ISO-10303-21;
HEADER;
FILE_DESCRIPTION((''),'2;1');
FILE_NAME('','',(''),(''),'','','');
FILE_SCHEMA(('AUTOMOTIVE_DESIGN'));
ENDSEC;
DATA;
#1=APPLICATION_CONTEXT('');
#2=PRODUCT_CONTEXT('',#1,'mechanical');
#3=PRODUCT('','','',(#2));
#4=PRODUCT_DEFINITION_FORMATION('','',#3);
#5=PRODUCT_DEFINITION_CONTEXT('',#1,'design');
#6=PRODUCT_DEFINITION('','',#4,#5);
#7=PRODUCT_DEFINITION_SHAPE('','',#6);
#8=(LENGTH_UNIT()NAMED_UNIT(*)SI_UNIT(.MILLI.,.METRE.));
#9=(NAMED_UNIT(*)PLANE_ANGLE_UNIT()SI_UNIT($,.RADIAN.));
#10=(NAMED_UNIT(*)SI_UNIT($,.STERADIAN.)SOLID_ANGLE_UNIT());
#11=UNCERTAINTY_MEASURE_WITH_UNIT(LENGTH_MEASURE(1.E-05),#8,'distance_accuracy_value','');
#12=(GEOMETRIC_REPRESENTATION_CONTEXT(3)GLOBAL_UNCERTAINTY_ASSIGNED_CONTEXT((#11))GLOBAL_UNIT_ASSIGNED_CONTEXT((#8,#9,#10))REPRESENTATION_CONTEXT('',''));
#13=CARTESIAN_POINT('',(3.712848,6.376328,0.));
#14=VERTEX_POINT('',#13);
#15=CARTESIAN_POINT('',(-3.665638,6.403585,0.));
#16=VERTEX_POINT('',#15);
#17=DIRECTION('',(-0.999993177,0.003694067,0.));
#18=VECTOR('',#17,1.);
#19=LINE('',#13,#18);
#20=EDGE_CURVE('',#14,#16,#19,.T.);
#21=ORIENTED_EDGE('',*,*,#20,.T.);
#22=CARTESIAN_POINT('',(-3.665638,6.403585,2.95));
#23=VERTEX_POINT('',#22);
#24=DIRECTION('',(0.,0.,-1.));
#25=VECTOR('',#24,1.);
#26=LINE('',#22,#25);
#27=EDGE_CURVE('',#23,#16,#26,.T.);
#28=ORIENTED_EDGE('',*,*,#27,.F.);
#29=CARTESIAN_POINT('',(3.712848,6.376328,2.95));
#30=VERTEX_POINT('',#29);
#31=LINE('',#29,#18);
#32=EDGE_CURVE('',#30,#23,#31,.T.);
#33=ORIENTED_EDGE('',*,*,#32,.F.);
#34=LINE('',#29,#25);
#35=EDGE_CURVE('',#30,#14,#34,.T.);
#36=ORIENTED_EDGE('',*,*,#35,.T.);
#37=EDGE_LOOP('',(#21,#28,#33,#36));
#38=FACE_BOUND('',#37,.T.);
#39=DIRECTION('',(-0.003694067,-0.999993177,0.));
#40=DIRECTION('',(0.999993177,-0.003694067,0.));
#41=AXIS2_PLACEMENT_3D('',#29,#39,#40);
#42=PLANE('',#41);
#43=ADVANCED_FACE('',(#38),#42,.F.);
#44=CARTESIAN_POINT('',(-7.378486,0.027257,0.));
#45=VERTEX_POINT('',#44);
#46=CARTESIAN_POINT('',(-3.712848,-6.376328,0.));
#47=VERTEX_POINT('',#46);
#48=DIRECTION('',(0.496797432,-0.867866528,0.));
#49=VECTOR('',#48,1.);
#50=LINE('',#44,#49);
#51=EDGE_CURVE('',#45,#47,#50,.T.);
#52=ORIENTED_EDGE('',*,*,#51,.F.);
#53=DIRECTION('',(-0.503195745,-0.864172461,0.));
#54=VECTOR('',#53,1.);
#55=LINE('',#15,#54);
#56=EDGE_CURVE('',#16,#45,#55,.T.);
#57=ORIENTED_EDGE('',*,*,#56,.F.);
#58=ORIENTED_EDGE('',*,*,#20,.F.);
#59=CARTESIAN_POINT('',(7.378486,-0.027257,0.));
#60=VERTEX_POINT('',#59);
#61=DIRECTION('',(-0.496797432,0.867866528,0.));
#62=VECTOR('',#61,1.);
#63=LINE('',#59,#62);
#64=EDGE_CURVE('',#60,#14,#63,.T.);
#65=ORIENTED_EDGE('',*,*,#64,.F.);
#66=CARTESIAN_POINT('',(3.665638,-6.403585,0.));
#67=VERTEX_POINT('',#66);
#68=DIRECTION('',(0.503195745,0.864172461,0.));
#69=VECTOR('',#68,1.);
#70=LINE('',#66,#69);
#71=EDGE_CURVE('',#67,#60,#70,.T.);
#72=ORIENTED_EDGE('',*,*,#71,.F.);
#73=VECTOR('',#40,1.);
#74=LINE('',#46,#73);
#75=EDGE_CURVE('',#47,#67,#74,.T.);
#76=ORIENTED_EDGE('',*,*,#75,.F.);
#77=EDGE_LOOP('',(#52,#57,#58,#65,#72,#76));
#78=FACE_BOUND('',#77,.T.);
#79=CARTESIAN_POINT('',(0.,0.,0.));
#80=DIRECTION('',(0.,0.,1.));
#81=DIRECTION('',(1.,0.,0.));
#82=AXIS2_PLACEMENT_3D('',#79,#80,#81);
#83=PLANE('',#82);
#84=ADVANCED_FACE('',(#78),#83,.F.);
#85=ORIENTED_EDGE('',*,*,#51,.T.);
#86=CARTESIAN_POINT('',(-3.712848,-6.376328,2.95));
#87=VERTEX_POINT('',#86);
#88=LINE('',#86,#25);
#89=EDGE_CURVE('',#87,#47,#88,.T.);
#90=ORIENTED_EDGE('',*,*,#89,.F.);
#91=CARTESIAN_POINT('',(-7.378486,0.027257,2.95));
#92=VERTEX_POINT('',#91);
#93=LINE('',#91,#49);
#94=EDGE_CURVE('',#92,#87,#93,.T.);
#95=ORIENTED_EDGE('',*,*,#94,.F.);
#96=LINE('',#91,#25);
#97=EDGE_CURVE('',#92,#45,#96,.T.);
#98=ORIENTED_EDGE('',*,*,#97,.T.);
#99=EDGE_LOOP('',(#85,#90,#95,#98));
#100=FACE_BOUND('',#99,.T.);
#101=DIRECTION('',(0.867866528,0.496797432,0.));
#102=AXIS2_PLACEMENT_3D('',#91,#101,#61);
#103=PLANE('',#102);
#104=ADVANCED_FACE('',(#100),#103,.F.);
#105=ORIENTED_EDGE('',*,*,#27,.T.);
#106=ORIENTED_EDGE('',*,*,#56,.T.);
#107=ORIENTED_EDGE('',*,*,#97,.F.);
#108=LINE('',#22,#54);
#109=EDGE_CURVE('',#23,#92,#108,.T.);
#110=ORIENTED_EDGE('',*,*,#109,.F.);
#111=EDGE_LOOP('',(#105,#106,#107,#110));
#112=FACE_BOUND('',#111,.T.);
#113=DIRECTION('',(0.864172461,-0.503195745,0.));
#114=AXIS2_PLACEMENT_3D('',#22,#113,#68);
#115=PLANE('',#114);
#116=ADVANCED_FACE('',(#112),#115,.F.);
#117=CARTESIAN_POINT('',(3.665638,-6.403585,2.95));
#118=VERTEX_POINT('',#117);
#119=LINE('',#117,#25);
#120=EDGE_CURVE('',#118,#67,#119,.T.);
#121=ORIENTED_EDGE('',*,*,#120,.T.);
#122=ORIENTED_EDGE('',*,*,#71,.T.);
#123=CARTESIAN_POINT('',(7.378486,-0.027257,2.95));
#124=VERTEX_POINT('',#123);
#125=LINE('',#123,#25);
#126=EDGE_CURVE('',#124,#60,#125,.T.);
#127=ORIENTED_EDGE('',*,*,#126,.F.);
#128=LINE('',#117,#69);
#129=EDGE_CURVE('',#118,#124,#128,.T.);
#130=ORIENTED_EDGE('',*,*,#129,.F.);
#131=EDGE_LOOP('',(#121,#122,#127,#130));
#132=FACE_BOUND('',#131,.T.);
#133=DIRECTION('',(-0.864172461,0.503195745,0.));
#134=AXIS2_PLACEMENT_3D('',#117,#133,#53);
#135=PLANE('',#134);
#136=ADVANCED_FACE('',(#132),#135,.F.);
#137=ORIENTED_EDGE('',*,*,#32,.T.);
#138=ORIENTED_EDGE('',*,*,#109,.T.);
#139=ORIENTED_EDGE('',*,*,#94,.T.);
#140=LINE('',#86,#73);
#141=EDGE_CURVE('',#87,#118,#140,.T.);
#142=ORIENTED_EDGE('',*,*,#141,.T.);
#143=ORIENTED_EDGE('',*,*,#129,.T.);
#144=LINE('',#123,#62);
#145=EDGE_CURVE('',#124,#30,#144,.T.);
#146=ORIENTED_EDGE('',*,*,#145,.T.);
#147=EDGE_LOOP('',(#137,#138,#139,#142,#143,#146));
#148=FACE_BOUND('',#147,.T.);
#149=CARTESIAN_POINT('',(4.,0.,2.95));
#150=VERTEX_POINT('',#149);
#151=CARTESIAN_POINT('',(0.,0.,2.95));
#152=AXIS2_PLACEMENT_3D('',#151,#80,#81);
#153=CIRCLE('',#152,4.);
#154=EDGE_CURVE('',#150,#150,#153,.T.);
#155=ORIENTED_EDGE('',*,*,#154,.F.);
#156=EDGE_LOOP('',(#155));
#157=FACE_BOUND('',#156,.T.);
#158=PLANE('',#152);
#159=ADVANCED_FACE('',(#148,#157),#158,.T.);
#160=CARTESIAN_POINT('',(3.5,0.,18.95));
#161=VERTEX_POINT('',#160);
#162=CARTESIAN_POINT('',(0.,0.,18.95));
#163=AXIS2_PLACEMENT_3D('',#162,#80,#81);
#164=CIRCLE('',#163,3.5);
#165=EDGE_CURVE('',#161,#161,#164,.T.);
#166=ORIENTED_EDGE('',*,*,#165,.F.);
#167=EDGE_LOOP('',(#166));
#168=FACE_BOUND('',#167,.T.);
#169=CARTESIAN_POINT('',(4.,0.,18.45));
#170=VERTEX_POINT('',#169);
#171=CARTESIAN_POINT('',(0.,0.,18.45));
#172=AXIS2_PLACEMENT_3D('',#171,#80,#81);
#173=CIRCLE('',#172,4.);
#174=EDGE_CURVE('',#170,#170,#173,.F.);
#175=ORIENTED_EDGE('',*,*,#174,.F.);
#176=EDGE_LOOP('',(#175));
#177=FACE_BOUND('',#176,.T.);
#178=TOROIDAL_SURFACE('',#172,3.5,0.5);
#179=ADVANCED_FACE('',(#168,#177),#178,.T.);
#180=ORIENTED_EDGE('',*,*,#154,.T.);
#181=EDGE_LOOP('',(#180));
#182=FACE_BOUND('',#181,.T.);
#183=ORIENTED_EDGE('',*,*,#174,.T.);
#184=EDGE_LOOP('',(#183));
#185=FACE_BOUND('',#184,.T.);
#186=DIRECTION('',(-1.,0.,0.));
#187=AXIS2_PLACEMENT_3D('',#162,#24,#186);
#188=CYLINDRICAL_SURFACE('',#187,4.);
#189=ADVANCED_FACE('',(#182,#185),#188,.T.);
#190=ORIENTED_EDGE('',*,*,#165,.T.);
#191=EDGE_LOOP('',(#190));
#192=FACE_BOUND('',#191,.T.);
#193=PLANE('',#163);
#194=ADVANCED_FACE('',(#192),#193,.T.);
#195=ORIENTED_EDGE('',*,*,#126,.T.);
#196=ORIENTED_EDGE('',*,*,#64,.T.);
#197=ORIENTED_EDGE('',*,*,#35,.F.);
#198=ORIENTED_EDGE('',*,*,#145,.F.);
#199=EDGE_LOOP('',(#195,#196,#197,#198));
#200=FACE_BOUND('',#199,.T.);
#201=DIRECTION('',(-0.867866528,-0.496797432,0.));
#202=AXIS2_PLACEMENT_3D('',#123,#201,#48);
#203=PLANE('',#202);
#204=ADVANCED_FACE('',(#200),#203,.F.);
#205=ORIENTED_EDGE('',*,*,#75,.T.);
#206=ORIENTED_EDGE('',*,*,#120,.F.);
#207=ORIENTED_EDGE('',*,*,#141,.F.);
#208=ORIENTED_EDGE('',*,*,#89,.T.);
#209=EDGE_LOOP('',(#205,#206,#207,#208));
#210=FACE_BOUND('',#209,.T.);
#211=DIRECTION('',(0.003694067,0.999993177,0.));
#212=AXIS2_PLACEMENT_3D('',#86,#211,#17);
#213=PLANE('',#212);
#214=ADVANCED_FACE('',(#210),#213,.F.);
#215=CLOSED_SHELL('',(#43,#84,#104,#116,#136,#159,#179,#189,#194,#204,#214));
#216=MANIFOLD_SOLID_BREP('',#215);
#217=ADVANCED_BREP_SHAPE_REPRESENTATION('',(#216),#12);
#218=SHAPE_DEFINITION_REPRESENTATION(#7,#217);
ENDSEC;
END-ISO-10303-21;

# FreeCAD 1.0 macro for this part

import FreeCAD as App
import Part
import Sketcher

V = App.Vector


def edges_at(feature, points):
    """Names of the edges that pass closest to the given points."""
    edges = feature.Shape.Edges
    near = lambda p: min(range(len(edges)), key=lambda i: edges[i].distToShape(Part.Vertex(*p))[0])
    return sorted({f"Edge{near(p) + 1}" for p in points})


def add_polygon(sketch, points):
    """Adds a closed chain of lines whose ends are joined by coincident constraints."""
    first, n = sketch.GeometryCount, len(points)
    for a, b in zip(points, points[1:] + points[:1]):
        sketch.addGeometry(Part.LineSegment(App.Vector(*a, 0), App.Vector(*b, 0)), False)
    for i in range(n):
        sketch.addConstraint(Sketcher.Constraint("Coincident", first + i, 2, first + (i + 1) % n, 1))

doc = App.newDocument("Part")
body = doc.addObject("PartDesign::Body", "Body")

# Sketch on XY plane
sketch1 = body.newObject("Sketcher::SketchObject", "Sketch")
sketch1.AttachmentSupport = (doc.getObject("XY_Plane"), [""])
sketch1.MapMode = "FlatFace"
add_polygon(sketch1, [(4, 6), (-4, 6), (-7, 0), (-4, -6), (4, -6), (7, 0)])  # lines 0-5
sketch1.addConstraint(Sketcher.Constraint("Symmetric", 0, 2, 3, 2, -1, 1))
sketch1.addConstraint(Sketcher.Constraint("Symmetric", 1, 2, 4, 2, -1, 1))
sketch1.addConstraint(Sketcher.Constraint("Symmetric", 2, 2, 5, 2, -1, 1))
sketch1.addConstraint(Sketcher.Constraint("Equal", 0, 1))
sketch1.addConstraint(Sketcher.Constraint("Equal", 1, 2))
sketch1.addConstraint(Sketcher.Constraint("DistanceX", 2, 2, -1, 1, 3.712848))
sketch1.addConstraint(Sketcher.Constraint("DistanceX", 1, 2, 0, 2, 3.712848))
sketch1.addConstraint(Sketcher.Constraint("DistanceX", 2, 2, 0, 2, 0.04721))
sketch1.addConstraint(Sketcher.Constraint("DistanceY", 3, 2, 1, 2, 6.430842))
pad1 = body.newObject("PartDesign::Pad", "Pad")
pad1.Profile = sketch1
pad1.Length = 2.95

# Sketch on XY plane
sketch2 = body.newObject("Sketcher::SketchObject", "Sketch001")
sketch2.AttachmentSupport = (doc.getObject("XY_Plane"), [""])
sketch2.MapMode = "FlatFace"
sketch2.AttachmentOffset = App.Placement(V(0, 0, 2.95), App.Rotation())
sketch2.addGeometry(Part.Circle(V(0, 0, 0), V(0, 0, 1), 4), False)
sketch2.addConstraint(Sketcher.Constraint("Coincident", 0, 3, -1, 1))
sketch2.addConstraint(Sketcher.Constraint("Diameter", 0, 8.0))
pad2 = body.newObject("PartDesign::Pad", "Pad001")
pad2.Profile = sketch2
pad2.Length = 16
doc.recompute()

fillet = body.newObject("PartDesign::Fillet", "Fillet")
fillet.Base = (pad2, edges_at(pad2, [(-4, 0, 18.95)]))
fillet.Radius = 0.5

doc.recompute()
